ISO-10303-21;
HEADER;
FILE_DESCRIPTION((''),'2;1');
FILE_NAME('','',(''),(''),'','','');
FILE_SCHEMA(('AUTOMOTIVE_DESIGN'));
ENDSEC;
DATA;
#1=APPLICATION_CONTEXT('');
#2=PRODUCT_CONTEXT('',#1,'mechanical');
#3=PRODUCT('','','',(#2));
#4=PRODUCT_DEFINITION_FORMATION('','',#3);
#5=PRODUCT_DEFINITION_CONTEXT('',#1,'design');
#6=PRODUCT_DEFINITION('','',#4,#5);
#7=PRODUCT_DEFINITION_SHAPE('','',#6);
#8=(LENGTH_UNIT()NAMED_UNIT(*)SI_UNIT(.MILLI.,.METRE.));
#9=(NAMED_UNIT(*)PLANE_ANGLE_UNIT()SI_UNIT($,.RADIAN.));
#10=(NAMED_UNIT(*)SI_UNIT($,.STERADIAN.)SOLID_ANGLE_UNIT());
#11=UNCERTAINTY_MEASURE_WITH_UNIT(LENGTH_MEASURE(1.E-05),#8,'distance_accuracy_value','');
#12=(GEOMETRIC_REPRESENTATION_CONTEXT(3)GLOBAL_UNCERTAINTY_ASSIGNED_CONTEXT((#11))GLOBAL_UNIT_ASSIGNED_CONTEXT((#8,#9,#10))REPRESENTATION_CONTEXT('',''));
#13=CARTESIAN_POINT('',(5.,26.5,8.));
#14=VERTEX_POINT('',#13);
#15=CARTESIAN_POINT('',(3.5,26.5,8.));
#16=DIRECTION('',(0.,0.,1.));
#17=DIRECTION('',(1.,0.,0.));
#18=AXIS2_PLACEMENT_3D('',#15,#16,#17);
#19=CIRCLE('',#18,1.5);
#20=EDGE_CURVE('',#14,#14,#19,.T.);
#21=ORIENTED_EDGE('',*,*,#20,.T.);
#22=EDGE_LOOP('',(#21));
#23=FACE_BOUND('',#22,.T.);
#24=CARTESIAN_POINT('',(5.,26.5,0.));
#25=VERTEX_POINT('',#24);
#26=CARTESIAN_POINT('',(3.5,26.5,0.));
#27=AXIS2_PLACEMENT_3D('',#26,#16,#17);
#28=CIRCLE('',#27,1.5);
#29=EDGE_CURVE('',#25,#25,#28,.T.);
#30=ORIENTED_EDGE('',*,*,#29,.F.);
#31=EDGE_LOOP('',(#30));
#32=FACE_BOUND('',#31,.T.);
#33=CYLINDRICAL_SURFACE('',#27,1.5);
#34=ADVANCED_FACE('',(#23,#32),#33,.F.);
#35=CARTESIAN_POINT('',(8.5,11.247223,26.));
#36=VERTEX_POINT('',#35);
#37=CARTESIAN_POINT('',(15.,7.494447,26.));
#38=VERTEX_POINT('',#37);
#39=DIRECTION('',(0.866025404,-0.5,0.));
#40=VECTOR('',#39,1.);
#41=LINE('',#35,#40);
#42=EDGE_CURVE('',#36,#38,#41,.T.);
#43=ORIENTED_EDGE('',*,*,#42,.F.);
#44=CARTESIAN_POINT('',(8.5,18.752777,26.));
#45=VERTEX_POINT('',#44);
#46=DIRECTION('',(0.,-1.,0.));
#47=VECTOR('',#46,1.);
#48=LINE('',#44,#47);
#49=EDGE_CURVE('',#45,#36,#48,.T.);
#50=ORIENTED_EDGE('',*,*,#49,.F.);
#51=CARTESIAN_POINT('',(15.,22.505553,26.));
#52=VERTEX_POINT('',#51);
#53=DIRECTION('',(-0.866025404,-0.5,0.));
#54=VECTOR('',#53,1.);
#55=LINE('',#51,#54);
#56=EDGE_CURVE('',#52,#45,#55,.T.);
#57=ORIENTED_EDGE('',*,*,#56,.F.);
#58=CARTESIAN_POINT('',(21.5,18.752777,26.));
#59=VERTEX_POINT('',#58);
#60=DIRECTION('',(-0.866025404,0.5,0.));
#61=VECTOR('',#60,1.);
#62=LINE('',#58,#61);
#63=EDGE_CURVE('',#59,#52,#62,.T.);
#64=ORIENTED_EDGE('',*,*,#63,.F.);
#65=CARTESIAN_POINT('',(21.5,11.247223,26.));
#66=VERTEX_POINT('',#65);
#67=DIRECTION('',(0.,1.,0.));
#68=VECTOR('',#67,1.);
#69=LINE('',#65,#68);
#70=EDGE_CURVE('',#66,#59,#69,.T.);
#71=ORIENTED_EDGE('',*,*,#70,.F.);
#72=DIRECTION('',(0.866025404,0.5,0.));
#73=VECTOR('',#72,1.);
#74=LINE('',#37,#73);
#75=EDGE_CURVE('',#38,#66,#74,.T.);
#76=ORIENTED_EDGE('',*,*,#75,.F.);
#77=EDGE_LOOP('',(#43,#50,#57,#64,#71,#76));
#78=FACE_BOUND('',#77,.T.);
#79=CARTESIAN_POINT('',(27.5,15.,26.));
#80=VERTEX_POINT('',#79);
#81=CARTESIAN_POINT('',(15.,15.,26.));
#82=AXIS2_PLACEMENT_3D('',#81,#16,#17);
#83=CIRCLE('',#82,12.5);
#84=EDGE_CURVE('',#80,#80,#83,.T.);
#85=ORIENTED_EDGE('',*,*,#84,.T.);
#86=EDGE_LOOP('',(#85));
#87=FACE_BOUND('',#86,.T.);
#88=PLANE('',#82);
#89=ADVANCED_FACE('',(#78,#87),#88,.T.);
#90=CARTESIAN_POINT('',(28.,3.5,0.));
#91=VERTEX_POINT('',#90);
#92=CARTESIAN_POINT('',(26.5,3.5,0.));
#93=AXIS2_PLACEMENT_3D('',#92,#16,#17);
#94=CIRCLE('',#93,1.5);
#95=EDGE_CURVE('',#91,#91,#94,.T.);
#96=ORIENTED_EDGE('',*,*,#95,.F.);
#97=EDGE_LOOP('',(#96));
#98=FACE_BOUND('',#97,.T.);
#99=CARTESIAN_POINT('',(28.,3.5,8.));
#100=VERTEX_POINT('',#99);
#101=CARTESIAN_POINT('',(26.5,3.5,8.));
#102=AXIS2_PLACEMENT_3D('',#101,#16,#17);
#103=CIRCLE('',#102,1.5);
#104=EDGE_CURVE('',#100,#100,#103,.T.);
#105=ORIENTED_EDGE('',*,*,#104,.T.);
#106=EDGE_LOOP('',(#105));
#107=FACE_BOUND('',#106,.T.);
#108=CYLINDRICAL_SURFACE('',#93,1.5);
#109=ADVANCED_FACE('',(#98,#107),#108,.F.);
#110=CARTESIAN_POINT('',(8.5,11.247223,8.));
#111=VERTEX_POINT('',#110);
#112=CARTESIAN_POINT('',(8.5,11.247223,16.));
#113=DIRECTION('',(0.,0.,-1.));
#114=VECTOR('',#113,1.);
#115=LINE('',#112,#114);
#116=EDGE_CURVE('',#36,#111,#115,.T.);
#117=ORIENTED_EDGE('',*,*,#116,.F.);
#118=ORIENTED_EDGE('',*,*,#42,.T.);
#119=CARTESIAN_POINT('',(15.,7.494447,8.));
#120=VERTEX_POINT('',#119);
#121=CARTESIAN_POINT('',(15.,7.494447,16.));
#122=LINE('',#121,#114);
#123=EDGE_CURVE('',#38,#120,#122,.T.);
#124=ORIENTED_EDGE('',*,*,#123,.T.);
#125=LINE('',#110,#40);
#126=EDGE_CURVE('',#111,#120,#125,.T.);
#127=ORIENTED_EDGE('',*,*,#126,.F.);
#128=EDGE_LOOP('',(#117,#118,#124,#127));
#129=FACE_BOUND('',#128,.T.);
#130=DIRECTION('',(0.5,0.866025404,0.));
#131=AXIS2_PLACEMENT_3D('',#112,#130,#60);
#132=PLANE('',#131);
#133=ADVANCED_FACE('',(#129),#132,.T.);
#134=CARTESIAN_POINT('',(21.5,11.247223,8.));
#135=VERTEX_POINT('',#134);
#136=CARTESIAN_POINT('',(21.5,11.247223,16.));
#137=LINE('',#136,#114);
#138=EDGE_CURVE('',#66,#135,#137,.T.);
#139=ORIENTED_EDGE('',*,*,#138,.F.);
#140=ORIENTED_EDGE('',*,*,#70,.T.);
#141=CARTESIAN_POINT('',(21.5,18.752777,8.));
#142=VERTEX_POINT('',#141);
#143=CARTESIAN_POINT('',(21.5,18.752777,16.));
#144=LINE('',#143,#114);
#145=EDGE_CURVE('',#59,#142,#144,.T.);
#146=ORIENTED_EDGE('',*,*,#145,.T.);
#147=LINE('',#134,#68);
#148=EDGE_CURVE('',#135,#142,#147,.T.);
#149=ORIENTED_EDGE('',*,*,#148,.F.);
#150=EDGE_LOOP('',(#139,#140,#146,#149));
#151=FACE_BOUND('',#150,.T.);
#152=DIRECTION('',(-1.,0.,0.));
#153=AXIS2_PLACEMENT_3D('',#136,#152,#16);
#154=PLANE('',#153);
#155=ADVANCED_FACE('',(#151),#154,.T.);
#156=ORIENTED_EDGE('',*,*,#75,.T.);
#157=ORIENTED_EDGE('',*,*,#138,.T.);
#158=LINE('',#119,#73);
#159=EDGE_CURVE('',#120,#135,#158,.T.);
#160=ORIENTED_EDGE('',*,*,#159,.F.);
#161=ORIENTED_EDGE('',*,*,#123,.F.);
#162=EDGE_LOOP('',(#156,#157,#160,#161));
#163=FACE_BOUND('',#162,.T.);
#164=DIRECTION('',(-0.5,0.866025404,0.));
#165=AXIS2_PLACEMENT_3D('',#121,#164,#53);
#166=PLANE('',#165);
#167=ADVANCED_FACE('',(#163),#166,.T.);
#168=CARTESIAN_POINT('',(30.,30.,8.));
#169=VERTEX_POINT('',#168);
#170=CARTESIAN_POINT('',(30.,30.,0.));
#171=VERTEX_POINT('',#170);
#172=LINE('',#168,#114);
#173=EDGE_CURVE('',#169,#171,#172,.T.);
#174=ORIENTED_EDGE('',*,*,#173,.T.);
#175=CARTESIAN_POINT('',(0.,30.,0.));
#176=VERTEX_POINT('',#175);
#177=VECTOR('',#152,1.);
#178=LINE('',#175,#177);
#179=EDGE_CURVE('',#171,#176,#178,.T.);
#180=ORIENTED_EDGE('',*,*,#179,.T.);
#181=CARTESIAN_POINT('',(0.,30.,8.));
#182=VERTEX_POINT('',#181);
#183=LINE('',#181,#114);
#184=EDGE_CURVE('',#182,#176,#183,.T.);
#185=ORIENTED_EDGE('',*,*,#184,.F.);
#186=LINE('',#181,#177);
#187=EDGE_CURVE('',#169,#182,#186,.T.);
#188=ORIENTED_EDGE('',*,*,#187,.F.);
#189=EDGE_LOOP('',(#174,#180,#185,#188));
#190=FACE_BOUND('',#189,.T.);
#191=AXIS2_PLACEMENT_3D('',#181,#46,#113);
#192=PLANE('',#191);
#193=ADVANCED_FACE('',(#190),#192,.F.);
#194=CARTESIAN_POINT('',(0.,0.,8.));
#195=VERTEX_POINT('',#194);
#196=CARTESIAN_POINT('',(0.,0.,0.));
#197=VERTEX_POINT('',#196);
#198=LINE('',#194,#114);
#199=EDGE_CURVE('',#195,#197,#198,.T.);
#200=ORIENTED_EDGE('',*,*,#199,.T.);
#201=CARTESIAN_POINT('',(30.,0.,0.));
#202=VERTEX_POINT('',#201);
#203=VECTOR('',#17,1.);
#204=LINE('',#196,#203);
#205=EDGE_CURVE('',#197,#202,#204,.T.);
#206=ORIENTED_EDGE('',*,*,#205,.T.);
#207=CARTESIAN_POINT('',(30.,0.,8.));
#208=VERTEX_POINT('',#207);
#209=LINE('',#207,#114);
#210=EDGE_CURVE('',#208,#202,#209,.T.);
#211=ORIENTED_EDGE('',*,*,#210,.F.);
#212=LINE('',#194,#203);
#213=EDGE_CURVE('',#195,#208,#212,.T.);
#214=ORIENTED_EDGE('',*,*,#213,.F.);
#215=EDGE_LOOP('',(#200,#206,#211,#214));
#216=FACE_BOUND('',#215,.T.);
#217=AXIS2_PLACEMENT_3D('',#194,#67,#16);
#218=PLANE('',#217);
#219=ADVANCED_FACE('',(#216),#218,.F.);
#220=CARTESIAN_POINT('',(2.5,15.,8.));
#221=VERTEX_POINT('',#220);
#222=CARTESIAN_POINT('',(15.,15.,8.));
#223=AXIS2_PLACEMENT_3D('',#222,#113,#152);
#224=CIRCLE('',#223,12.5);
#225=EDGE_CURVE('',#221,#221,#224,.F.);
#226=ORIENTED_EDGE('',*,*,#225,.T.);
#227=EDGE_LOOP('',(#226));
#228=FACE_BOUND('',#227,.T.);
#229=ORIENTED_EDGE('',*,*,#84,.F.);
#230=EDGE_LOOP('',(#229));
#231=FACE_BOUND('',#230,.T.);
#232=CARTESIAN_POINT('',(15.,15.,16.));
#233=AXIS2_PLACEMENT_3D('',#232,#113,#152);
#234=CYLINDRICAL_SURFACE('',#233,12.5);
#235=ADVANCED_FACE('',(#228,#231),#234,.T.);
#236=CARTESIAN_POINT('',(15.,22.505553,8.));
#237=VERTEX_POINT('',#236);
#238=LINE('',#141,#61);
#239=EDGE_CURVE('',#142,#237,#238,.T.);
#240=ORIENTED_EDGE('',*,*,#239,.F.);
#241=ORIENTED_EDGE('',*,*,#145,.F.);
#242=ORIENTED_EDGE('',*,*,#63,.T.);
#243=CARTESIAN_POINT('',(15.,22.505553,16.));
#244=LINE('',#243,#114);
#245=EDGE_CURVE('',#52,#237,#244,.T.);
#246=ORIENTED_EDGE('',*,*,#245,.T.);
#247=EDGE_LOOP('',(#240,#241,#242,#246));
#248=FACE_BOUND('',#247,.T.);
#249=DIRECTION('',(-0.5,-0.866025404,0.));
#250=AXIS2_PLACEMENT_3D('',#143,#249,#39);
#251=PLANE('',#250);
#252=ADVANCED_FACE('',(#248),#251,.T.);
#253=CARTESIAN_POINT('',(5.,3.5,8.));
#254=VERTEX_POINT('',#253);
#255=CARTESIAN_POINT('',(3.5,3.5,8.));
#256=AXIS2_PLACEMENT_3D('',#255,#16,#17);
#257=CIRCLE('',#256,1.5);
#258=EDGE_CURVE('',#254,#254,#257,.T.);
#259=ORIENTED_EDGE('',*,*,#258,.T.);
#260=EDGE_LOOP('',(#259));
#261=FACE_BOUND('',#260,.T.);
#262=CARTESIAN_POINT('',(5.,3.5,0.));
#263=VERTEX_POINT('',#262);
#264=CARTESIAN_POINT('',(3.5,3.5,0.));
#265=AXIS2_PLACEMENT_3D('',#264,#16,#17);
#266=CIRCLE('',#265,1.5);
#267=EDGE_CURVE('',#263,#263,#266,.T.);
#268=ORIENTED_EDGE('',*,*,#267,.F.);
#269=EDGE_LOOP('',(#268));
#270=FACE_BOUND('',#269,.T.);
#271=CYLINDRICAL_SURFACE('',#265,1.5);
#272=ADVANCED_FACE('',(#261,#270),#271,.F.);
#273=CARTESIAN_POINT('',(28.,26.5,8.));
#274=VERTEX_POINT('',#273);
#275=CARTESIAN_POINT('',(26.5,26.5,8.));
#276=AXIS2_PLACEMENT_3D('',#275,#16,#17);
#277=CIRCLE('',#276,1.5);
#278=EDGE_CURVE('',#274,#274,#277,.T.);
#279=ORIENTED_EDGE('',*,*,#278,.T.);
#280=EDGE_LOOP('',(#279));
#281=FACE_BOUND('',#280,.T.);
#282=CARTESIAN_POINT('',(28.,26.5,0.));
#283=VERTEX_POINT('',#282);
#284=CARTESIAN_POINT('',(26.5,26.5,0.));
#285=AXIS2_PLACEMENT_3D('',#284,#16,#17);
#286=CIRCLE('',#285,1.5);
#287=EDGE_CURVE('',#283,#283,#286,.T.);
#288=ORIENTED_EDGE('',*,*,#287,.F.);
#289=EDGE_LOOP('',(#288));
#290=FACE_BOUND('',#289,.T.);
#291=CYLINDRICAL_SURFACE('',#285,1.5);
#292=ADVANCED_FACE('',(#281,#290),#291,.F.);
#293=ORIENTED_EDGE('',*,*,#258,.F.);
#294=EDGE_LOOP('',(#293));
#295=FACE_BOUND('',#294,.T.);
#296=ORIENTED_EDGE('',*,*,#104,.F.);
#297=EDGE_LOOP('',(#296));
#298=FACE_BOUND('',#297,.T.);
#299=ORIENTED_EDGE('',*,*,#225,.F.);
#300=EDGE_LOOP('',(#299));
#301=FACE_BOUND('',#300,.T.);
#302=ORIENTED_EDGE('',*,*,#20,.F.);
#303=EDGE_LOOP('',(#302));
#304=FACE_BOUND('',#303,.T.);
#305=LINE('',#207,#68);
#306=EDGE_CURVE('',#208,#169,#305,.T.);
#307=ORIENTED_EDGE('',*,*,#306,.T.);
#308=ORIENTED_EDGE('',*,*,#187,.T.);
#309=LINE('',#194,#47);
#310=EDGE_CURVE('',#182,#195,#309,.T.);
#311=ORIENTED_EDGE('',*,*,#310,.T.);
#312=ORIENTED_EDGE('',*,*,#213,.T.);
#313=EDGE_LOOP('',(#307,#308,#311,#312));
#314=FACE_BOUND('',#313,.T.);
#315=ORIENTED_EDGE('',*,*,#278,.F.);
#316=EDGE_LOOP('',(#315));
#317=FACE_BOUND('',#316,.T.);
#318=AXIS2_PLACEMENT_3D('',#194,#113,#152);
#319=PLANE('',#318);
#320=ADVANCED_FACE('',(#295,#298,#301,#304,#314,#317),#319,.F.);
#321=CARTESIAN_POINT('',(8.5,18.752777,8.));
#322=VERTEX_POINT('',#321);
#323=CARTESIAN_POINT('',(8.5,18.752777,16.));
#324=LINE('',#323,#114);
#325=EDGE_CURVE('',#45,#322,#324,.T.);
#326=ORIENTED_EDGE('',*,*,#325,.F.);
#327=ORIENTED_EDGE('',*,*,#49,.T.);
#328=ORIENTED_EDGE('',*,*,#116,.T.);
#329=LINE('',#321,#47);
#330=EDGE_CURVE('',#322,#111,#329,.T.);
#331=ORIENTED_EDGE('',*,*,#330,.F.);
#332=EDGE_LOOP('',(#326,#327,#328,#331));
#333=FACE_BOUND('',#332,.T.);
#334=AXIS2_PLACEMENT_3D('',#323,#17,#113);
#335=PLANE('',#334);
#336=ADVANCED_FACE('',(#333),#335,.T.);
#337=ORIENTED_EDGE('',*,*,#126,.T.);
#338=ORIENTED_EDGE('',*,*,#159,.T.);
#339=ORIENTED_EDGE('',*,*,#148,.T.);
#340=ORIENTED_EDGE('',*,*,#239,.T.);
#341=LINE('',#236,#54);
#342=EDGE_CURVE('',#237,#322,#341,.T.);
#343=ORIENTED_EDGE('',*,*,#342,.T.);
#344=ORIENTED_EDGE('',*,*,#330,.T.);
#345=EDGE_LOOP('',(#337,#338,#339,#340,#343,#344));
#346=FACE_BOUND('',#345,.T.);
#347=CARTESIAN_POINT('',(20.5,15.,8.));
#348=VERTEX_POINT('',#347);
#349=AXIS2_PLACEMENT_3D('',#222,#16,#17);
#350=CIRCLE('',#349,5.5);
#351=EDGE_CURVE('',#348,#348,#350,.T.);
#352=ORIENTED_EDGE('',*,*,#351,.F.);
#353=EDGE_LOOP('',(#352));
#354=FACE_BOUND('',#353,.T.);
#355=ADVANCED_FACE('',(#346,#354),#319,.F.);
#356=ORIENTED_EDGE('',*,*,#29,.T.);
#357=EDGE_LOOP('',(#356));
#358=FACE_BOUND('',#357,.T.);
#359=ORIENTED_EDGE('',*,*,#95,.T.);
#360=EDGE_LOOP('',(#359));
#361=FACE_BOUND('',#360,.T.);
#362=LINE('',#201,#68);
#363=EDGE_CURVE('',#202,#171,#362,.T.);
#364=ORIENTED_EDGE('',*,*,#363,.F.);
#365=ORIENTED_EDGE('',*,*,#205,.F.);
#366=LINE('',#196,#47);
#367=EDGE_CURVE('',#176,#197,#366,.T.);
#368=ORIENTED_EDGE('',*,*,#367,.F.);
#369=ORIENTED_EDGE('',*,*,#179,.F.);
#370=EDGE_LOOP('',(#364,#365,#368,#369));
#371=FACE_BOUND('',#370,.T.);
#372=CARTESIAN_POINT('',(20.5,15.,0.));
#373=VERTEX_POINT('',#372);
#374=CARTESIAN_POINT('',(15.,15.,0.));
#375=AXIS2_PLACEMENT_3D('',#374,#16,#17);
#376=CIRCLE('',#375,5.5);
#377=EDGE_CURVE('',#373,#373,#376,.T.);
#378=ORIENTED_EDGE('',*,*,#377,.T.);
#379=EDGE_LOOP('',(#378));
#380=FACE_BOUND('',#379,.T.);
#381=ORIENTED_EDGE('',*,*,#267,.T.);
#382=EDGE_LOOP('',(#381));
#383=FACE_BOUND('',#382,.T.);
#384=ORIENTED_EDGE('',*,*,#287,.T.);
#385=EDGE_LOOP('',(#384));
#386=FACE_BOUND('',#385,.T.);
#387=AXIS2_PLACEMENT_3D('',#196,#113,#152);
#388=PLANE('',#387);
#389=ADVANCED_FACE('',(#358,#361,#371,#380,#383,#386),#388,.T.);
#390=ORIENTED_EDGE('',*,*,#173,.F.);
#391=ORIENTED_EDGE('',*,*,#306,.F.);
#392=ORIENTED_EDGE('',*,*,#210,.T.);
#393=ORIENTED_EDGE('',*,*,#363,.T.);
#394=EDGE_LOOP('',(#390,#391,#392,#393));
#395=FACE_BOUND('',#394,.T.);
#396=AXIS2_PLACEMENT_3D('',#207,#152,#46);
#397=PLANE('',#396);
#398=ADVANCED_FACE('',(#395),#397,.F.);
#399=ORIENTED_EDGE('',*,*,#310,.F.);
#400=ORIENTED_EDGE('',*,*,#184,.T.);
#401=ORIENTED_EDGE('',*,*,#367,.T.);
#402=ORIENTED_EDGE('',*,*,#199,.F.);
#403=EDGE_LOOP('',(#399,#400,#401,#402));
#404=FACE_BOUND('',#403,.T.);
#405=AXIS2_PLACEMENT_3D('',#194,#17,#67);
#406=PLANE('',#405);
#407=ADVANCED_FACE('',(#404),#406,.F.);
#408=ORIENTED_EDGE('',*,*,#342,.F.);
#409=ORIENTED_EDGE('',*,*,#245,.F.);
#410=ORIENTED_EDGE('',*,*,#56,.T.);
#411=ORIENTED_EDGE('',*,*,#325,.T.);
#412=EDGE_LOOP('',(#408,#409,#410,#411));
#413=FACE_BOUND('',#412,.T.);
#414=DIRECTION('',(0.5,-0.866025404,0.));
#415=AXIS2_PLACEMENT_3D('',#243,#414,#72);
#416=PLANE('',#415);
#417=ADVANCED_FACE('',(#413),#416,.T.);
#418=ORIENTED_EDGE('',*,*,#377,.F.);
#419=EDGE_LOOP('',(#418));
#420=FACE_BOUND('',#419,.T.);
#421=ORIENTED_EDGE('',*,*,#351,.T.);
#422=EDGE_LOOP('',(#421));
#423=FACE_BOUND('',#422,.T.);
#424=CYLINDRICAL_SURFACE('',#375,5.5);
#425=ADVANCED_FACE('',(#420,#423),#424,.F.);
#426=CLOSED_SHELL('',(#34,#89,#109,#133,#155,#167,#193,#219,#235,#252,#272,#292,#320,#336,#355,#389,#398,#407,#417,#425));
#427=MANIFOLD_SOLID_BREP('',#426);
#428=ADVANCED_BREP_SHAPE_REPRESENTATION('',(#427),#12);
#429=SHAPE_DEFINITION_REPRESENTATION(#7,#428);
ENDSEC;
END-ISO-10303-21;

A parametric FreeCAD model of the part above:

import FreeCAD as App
import Part
import Sketcher
from FreeCAD import Vector
Q = App.Units.Quantity


def add_polygon(sketch, points):
    """Adds a closed chain of lines whose ends are joined by coincident constraints."""
    first, n = sketch.GeometryCount, len(points)
    for a, b in zip(points, points[1:] + points[:1]):
        sketch.addGeometry(Part.LineSegment(App.Vector(*a, 0), App.Vector(*b, 0)), False)
    for i in range(n):
        sketch.addConstraint(Sketcher.Constraint("Coincident", first + i, 2, first + (i + 1) % n, 1))

doc = App.newDocument("Part")
body = doc.addObject("PartDesign::Body", "Body")

# Sketch on XY plane
sketch1 = doc.addObject("Sketcher::SketchObject", "Sketch")
body.addObject(sketch1)
sketch1.AttachmentSupport = (doc.XY_Plane, [""])
sketch1.MapMode = "FlatFace"
add_polygon(sketch1, [(0, 30), (0, 0), (30, 0), (30, 30)])  # lines 0-3
sketch1.addConstraint(Sketcher.Constraint("Vertical", 0))
sketch1.addConstraint(Sketcher.Constraint("Horizontal", 1))
sketch1.addConstraint(Sketcher.Constraint("Vertical", 2))
sketch1.addConstraint(Sketcher.Constraint("Horizontal", 3))
sketch1.addConstraint(Sketcher.Constraint("Coincident", 0, 2, -1, 1))
sketch1.addConstraint(Sketcher.Constraint("Equal", 3, 0))
sketch1.addConstraint(Sketcher.Constraint("DistanceX", 1, 1, 1, 2, 30.0))
pad1 = doc.addObject("PartDesign::Pad", "Pad")
body.addObject(pad1)
pad1.Profile = sketch1
pad1.Length = 8

# Sketch on XY plane
sketch2 = doc.addObject("Sketcher::SketchObject", "Sketch001")
body.addObject(sketch2)
sketch2.AttachmentSupport = (doc.XY_Plane, [""])
sketch2.MapMode = "FlatFace"
sketch2.AttachmentOffset = App.Placement(Vector(0, 0, 8), App.Rotation())
sketch2.addGeometry(Part.Circle(Vector(15, 15, 0), Vector(0, 0, 1), 12.5), False)  # 0
add_polygon(sketch2, [(8.5, 18.752777), (15, 22.505553), (21.5, 18.752777), (21.5, 11.247223), (15, 7.494447), (8.5, 11.247223)])  # lines 1-6
sketch2.addConstraint(Sketcher.Constraint("Vertical", 3))
sketch2.addConstraint(Sketcher.Constraint("Vertical", 6))
sketch2.addConstraint(Sketcher.Constraint("Parallel", 1, 4))
sketch2.addConstraint(Sketcher.Constraint("Parallel", 2, 5))
sketch2.addConstraint(Sketcher.Constraint("Horizontal", 3, 2, 5, 2))
sketch2.addConstraint(Sketcher.Constraint("Horizontal", 2, 2, 6, 2))
sketch2.addConstraint(Sketcher.Constraint("Vertical", 0, 3, 1, 2))
sketch2.addConstraint(Sketcher.Constraint("Vertical", 1, 2, 4, 2))
sketch2.addConstraint(Sketcher.Constraint("Diameter", 0, 25.0))
sketch2.addConstraint(Sketcher.Constraint("Angle", 1, Q("30 deg")))
sketch2.addConstraint(Sketcher.Constraint("DistanceX", -1, 1, 0, 3, 15.0))
sketch2.addConstraint(Sketcher.Constraint("DistanceY", -1, 1, 0, 3, 15.0))
sketch2.addConstraint(Sketcher.Constraint("DistanceX", 5, 2, 3, 2, 13.0))
sketch2.addConstraint(Sketcher.Constraint("DistanceY", 3, 2, 3, 1, 7.505553))
sketch2.addConstraint(Sketcher.Constraint("DistanceY", -1, 1, 1, 2, 22.505553))
pad2 = doc.addObject("PartDesign::Pad", "Pad001")
body.addObject(pad2)
pad2.Profile = sketch2
pad2.Length = 8

# Sketch on XY plane
sketch3 = doc.addObject("Sketcher::SketchObject", "Sketch002")
body.addObject(sketch3)
sketch3.AttachmentSupport = (doc.XY_Plane, [""])
sketch3.MapMode = "FlatFace"
sketch3.AttachmentOffset = App.Placement(Vector(0, 0, 8), App.Rotation())
sketch3.addGeometry(Part.Circle(Vector(15, 15, 0), Vector(0, 0, 1), 5.5), False)
sketch3.addConstraint(Sketcher.Constraint("Diameter", 0, 11.0))
sketch3.addConstraint(Sketcher.Constraint("DistanceX", -1, 1, 0, 3, 15.0))
sketch3.addConstraint(Sketcher.Constraint("DistanceY", -1, 1, 0, 3, 15.0))
pocket1 = doc.addObject("PartDesign::Pocket", "Pocket")
body.addObject(pocket1)
pocket1.Profile = sketch3
pocket1.Length = 8

# Sketch on XY plane
sketch4 = doc.addObject("Sketcher::SketchObject", "Sketch003")
body.addObject(sketch4)
sketch4.AttachmentSupport = (doc.XY_Plane, [""])
sketch4.MapMode = "FlatFace"
sketch4.AttachmentOffset = App.Placement(Vector(0, 0, 8), App.Rotation())
sketch4.addGeometry(Part.Circle(Vector(3.5, 26.5, 0), Vector(0, 0, 1), 1.5), False)
sketch4.addGeometry(Part.Circle(Vector(26.5, 26.5, 0), Vector(0, 0, 1), 1.5), False)
sketch4.addGeometry(Part.Circle(Vector(26.5, 3.5, 0), Vector(0, 0, 1), 1.5), False)
sketch4.addGeometry(Part.Circle(Vector(3.5, 3.5, 0), Vector(0, 0, 1), 1.5), False)
sketch4.addConstraint(Sketcher.Constraint("Equal", 0, 1))
sketch4.addConstraint(Sketcher.Constraint("Equal", 1, 2))
sketch4.addConstraint(Sketcher.Constraint("Equal", 2, 3))
sketch4.addConstraint(Sketcher.Constraint("Horizontal", 0, 3, 1, 3))
sketch4.addConstraint(Sketcher.Constraint("Horizontal", 2, 3, 3, 3))
sketch4.addConstraint(Sketcher.Constraint("Vertical", 1, 3, 2, 3))
sketch4.addConstraint(Sketcher.Constraint("Vertical", 0, 3, 3, 3))
sketch4.addConstraint(Sketcher.Constraint("Diameter", 0, 3.0))
sketch4.addConstraint(Sketcher.Constraint("DistanceX", 0, 3, 1, 3, 23.0))
sketch4.addConstraint(Sketcher.Constraint("DistanceY", 2, 3, 1, 3, 23.0))
sketch4.addConstraint(Sketcher.Constraint("DistanceX", -1, 1, 0, 3, 3.5))
sketch4.addConstraint(Sketcher.Constraint("DistanceY", -1, 1, 0, 3, 26.5))
pocket2 = doc.addObject("PartDesign::Pocket", "Pocket001")
body.addObject(pocket2)
pocket2.Profile = sketch4
pocket2.Length = 8

# Sketch on XY plane
sketch5 = doc.addObject("Sketcher::SketchObject", "Sketch004")
body.addObject(sketch5)
sketch5.AttachmentSupport = (doc.XY_Plane, [""])
sketch5.MapMode = "FlatFace"
sketch5.AttachmentOffset = App.Placement(Vector(0, 0, 16), App.Rotation())
sketch5.addGeometry(Part.Circle(Vector(15, 15, 0), Vector(0, 0, 1), 12.5), False)  # 0
add_polygon(sketch5, [(8.5, 18.752777), (15, 22.505553), (21.5, 18.752777), (21.5, 11.247223), (15, 7.494447), (8.5, 11.247223)])  # lines 1-6
sketch5.addConstraint(Sketcher.Constraint("Vertical", 3))
sketch5.addConstraint(Sketcher.Constraint("Vertical", 6))
sketch5.addConstraint(Sketcher.Constraint("Parallel", 1, 4))
sketch5.addConstraint(Sketcher.Constraint("Parallel", 2, 5))
sketch5.addConstraint(Sketcher.Constraint("Horizontal", 3, 2, 5, 2))
sketch5.addConstraint(Sketcher.Constraint("Horizontal", 2, 2, 6, 2))
sketch5.addConstraint(Sketcher.Constraint("Vertical", 0, 3, 1, 2))
sketch5.addConstraint(Sketcher.Constraint("Vertical", 1, 2, 4, 2))
sketch5.addConstraint(Sketcher.Constraint("Diameter", 0, 25.0))
sketch5.addConstraint(Sketcher.Constraint("Angle", 1, Q("30 deg")))
sketch5.addConstraint(Sketcher.Constraint("DistanceX", -1, 1, 0, 3, 15.0))
sketch5.addConstraint(Sketcher.Constraint("DistanceY", -1, 1, 0, 3, 15.0))
sketch5.addConstraint(Sketcher.Constraint("DistanceX", 5, 2, 3, 2, 13.0))
sketch5.addConstraint(Sketcher.Constraint("DistanceY", 3, 2, 3, 1, 7.505553))
sketch5.addConstraint(Sketcher.Constraint("DistanceY", -1, 1, 1, 2, 22.505553))
pad3 = doc.addObject("PartDesign::Pad", "Pad002")
body.addObject(pad3)
pad3.Profile = sketch5
pad3.Length = 10

doc.recompute()
